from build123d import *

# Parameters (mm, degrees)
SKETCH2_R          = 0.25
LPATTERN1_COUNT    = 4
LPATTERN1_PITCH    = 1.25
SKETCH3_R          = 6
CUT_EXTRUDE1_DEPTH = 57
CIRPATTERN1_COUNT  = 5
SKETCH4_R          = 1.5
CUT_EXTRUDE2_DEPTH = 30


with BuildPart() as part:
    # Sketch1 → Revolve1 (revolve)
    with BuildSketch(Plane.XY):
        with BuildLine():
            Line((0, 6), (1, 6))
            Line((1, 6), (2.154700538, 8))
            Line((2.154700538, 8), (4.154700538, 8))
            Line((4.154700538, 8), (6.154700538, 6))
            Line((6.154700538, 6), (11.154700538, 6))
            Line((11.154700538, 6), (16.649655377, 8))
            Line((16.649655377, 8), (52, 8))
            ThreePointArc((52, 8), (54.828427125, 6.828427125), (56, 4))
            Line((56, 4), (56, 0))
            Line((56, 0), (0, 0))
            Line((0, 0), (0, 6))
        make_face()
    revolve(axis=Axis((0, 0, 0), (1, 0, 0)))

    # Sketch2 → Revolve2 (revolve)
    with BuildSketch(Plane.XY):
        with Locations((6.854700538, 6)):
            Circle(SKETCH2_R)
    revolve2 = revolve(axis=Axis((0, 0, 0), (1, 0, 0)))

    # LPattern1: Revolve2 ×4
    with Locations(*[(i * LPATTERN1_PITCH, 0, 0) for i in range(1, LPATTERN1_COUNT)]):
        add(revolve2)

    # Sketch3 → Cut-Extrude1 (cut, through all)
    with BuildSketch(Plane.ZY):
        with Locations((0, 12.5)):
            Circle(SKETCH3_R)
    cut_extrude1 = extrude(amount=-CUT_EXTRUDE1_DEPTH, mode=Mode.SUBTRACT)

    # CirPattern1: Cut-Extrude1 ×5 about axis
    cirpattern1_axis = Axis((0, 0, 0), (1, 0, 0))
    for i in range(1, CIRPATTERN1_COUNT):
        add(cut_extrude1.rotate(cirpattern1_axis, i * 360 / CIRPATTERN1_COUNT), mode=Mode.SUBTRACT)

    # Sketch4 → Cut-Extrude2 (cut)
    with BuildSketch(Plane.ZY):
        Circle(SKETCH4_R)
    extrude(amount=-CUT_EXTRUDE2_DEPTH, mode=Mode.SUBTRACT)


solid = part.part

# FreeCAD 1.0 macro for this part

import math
import FreeCAD as App
import Part
import Sketcher
Q = App.Units.Quantity

doc = App.newDocument("Part")
body = doc.addObject("PartDesign::Body", "Body")

sketch1 = doc.addObject("Sketcher::SketchObject", "Sketch")
body.addObject(sketch1)
sketch1.AttachmentSupport = (doc.XY_Plane, [""])
sketch1.MapMode = "FlatFace"
sketch1.addGeometry(Part.LineSegment(App.Vector(1, 6, 0), App.Vector(0, 6, 0)), False)
sketch1.addGeometry(Part.LineSegment(App.Vector(0, 6, 0), App.Vector(0, 0, 0)), False)
sketch1.addGeometry(Part.LineSegment(App.Vector(0, 0, 0), App.Vector(56, 0, 0)), False)
sketch1.addGeometry(Part.LineSegment(App.Vector(56, 0, 0), App.Vector(56, 4, 0)), False)
sketch1.addGeometry(Part.ArcOfCircle(Part.Circle(App.Vector(52, 4, 0), App.Vector(0, 0, 1), 4), math.radians(0), math.radians(90)), False)
sketch1.addGeometry(Part.LineSegment(App.Vector(52, 8, 0), App.Vector(16.649655, 8, 0)), False)
sketch1.addGeometry(Part.LineSegment(App.Vector(16.649655, 8, 0), App.Vector(11.154701, 6, 0)), False)
sketch1.addGeometry(Part.LineSegment(App.Vector(11.154701, 6, 0), App.Vector(6.154701, 6, 0)), False)
sketch1.addGeometry(Part.LineSegment(App.Vector(6.154701, 6, 0), App.Vector(4.154701, 8, 0)), False)
sketch1.addGeometry(Part.LineSegment(App.Vector(4.154701, 8, 0), App.Vector(2.154701, 8, 0)), False)
sketch1.addGeometry(Part.LineSegment(App.Vector(2.154701, 8, 0), App.Vector(1, 6, 0)), False)
sketch1.addConstraint(Sketcher.Constraint("Coincident", 0, 2, 1, 1))
sketch1.addConstraint(Sketcher.Constraint("Coincident", 1, 2, 2, 1))
sketch1.addConstraint(Sketcher.Constraint("Coincident", 2, 2, 3, 1))
sketch1.addConstraint(Sketcher.Constraint("Tangent", 3, 2, 4, 1))
sketch1.addConstraint(Sketcher.Constraint("Tangent", 4, 2, 5, 1))
sketch1.addConstraint(Sketcher.Constraint("Coincident", 5, 2, 6, 1))
sketch1.addConstraint(Sketcher.Constraint("Coincident", 6, 2, 7, 1))
sketch1.addConstraint(Sketcher.Constraint("Coincident", 7, 2, 8, 1))
sketch1.addConstraint(Sketcher.Constraint("Coincident", 8, 2, 9, 1))
sketch1.addConstraint(Sketcher.Constraint("Coincident", 9, 2, 10, 1))
sketch1.addConstraint(Sketcher.Constraint("Coincident", 10, 2, 0, 1))
sketch1.addConstraint(Sketcher.Constraint("Horizontal", 0))
sketch1.addConstraint(Sketcher.Constraint("Vertical", 1))
sketch1.addConstraint(Sketcher.Constraint("Horizontal", 2))
sketch1.addConstraint(Sketcher.Constraint("Vertical", 3))
sketch1.addConstraint(Sketcher.Constraint("Horizontal", 5))
sketch1.addConstraint(Sketcher.Constraint("Horizontal", 7))
sketch1.addConstraint(Sketcher.Constraint("Horizontal", 9))
sketch1.addConstraint(Sketcher.Constraint("Coincident", 1, 2, -1, 1))
sketch1.addConstraint(Sketcher.Constraint("Horizontal", 0, 2, 6, 2))
sketch1.addConstraint(Sketcher.Constraint("Horizontal", 5, 2, 8, 2))
sketch1.addConstraint(Sketcher.Constraint("Radius", 4, 4.0))
sketch1.addConstraint(Sketcher.Constraint("DistanceX", 0, 2, 0, 1, 1.0))
sketch1.addConstraint(Sketcher.Constraint("DistanceX", 2, 1, 2, 2, 56.0))
sketch1.addConstraint(Sketcher.Constraint("DistanceX", 7, 2, 7, 1, 5.0))
sketch1.addConstraint(Sketcher.Constraint("DistanceX", 9, 2, 9, 1, 2.0))
sketch1.addConstraint(Sketcher.Constraint("DistanceY", 1, 2, 1, 1, 6.0))
sketch1.addConstraint(Sketcher.Constraint("DistanceY", 3, 1, 3, 2, 4.0))
sketch1.addConstraint(Sketcher.Constraint("Angle", 6, Q("-160 deg")))
sketch1.addConstraint(Sketcher.Constraint("Angle", 8, Q("135 deg")))
sketch1.addConstraint(Sketcher.Constraint("Angle", 10, Q("-120 deg")))
revolution = doc.addObject("PartDesign::Revolution", "Revolution")
body.addObject(revolution)
revolution.Profile = sketch1
revolution.ReferenceAxis = (sketch1, ["H_Axis"])
revolution.Angle = 360

sketch2 = doc.addObject("Sketcher::SketchObject", "Sketch001")
body.addObject(sketch2)
sketch2.AttachmentSupport = (doc.XY_Plane, [""])
sketch2.MapMode = "FlatFace"
sketch2.addGeometry(Part.Circle(App.Vector(6.854701, 6, 0), App.Vector(0, 0, 1), 0.25), False)
sketch2.addConstraint(Sketcher.Constraint("Diameter", 0, 0.5))
sketch2.addConstraint(Sketcher.Constraint("DistanceY", -1, 1, 0, 3, 6.0))
sketch2.addConstraint(Sketcher.Constraint("DistanceX", -1, 1, 0, 3, 6.854701))
revolution2 = doc.addObject("PartDesign::Revolution", "Revolution001")
body.addObject(revolution2)
revolution2.Profile = sketch2
revolution2.ReferenceAxis = (sketch2, ["H_Axis"])
revolution2.Angle = 360
doc.recompute()

linearpattern = doc.addObject("PartDesign::LinearPattern", "LinearPattern")
body.addObject(linearpattern)
linearpattern.Originals = [revolution2]
linearpattern.Direction = (doc.X_Axis, [""])
linearpattern.Mode = "offset"
linearpattern.Offset = 1.25
linearpattern.Occurrences = 4
body.Tip = linearpattern

sketch3 = doc.addObject("Sketcher::SketchObject", "Sketch002")
body.addObject(sketch3)
sketch3.AttachmentSupport = (doc.YZ_Plane, [""])
sketch3.MapMode = "FlatFace"
sketch3.addGeometry(Part.Circle(App.Vector(12.5, 0, 0), App.Vector(0, 0, 1), 6), False)
sketch3.addConstraint(Sketcher.Constraint("PointOnObject", 0, 3, -1))
sketch3.addConstraint(Sketcher.Constraint("Diameter", 0, 12.0))
sketch3.addConstraint(Sketcher.Constraint("DistanceX", -1, 1, 0, 3, 12.5))
pocket1 = doc.addObject("PartDesign::Pocket", "Pocket")
body.addObject(pocket1)
pocket1.Profile = sketch3
pocket1.Type = "ThroughAll"
pocket1.Reversed = True
doc.recompute()

polarpattern = doc.addObject("PartDesign::PolarPattern", "PolarPattern")
body.addObject(polarpattern)
polarpattern.Originals = [pocket1]
polarpattern.Axis = (doc.X_Axis, [""])
polarpattern.Angle = 360
polarpattern.Occurrences = 5
body.Tip = polarpattern

sketch4 = doc.addObject("Sketcher::SketchObject", "Sketch003")
body.addObject(sketch4)
sketch4.AttachmentSupport = (doc.YZ_Plane, [""])
sketch4.MapMode = "FlatFace"
sketch4.addGeometry(Part.Circle(App.Vector(0, 0, 0), App.Vector(0, 0, 1), 1.5), False)
sketch4.addConstraint(Sketcher.Constraint("Coincident", 0, 3, -1, 1))
sketch4.addConstraint(Sketcher.Constraint("Diameter", 0, 3.0))
pocket2 = doc.addObject("PartDesign::Pocket", "Pocket001")
body.addObject(pocket2)
pocket2.Profile = sketch4
pocket2.Length = 30
pocket2.Reversed = True

doc.recompute()
